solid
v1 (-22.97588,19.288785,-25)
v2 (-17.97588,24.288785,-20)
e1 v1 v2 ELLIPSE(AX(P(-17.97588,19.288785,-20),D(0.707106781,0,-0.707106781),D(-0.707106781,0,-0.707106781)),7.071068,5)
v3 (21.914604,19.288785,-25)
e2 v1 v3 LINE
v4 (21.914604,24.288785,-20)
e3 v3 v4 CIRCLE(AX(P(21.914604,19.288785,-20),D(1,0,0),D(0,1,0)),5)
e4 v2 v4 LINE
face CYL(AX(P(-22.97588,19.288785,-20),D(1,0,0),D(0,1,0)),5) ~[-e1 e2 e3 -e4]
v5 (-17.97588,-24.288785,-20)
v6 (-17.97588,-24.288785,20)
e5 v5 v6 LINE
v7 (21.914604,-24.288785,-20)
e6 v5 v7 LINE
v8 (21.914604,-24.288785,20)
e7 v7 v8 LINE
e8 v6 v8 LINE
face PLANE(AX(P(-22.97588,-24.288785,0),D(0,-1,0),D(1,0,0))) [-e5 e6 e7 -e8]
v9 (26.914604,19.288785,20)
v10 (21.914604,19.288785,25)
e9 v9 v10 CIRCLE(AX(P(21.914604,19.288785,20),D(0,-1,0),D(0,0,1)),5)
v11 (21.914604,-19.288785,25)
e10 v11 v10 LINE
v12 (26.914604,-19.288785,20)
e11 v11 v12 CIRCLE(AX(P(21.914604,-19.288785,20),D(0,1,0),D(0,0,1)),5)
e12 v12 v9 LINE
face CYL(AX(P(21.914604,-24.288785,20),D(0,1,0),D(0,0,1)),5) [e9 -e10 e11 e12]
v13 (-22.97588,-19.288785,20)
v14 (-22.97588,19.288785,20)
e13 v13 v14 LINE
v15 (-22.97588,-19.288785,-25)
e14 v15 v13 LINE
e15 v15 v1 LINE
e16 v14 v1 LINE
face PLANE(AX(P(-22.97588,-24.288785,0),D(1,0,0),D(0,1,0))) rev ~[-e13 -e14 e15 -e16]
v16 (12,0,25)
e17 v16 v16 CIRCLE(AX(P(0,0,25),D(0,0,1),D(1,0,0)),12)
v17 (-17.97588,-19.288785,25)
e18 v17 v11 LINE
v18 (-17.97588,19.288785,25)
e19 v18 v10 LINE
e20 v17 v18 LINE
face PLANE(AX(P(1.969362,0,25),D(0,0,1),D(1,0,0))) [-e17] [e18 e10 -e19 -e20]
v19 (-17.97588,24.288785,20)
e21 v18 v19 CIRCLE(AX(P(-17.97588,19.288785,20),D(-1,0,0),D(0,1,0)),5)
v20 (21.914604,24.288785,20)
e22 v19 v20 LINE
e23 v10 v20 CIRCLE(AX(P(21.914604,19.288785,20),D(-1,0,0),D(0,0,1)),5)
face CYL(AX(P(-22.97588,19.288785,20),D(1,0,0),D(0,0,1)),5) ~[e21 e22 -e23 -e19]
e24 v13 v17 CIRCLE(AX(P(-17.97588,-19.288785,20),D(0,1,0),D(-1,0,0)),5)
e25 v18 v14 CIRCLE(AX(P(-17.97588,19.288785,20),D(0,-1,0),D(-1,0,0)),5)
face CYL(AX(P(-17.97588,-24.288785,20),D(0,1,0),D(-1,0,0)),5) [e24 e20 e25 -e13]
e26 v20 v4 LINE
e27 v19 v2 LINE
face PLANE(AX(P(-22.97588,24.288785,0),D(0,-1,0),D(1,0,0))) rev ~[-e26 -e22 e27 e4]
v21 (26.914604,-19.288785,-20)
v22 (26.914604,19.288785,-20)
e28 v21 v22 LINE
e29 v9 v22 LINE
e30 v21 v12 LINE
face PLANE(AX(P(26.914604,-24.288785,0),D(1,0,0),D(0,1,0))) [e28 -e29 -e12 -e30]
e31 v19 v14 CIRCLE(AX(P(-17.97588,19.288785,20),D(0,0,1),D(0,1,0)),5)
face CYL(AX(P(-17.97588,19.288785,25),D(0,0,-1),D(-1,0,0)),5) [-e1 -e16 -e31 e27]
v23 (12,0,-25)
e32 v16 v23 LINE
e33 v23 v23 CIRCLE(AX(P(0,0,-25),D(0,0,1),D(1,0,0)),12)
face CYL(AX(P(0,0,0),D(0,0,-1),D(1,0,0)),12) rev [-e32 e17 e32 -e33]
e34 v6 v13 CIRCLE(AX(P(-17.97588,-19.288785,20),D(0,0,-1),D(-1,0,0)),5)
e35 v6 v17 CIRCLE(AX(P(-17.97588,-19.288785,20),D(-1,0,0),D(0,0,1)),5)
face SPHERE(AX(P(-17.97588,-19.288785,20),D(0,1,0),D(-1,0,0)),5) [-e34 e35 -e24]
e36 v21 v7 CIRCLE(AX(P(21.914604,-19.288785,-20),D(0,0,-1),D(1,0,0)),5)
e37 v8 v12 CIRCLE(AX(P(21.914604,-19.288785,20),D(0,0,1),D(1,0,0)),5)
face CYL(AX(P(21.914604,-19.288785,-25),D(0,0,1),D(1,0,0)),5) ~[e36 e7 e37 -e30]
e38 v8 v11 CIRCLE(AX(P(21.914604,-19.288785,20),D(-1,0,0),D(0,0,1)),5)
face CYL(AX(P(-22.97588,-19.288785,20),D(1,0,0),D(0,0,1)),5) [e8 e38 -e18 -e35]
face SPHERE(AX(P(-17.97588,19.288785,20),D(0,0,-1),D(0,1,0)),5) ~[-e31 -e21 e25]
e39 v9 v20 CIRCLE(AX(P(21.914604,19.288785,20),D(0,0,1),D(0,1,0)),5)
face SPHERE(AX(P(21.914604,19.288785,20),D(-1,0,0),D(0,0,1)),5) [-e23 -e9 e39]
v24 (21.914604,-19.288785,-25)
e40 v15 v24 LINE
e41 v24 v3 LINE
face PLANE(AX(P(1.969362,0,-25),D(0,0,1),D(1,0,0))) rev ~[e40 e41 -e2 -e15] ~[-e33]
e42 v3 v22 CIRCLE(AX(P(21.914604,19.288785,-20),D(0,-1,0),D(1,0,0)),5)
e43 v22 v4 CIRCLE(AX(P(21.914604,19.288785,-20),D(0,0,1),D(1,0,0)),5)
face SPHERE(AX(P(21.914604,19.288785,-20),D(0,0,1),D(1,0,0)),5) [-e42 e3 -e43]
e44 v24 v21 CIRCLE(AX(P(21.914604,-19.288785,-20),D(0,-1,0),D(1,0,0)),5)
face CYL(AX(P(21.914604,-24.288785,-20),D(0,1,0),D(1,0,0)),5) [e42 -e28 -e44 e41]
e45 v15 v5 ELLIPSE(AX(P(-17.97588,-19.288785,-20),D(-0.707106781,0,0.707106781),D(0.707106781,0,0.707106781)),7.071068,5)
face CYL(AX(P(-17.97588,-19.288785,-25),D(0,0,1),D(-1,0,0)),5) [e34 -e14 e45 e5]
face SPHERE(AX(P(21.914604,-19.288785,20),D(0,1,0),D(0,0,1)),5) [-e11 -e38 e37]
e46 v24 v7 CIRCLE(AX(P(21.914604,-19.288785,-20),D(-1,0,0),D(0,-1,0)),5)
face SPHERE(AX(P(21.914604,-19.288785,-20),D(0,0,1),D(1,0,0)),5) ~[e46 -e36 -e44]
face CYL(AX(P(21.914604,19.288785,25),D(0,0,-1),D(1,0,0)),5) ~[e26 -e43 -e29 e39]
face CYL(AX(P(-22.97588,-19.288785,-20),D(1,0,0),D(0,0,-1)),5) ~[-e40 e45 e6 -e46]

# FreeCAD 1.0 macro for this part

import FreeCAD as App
import Part
import Sketcher

V = App.Vector
Q = App.Units.Quantity


def edges_at(feature, points):
    """Names of the edges that pass closest to the given points."""
    edges = feature.Shape.Edges
    near = lambda p: min(range(len(edges)), key=lambda i: edges[i].distToShape(Part.Vertex(*p))[0])
    return sorted({f"Edge{near(p) + 1}" for p in points})


def add_polygon(sketch, points):
    """Adds a closed chain of lines whose ends are joined by coincident constraints."""
    first, n = sketch.GeometryCount, len(points)
    for a, b in zip(points, points[1:] + points[:1]):
        sketch.addGeometry(Part.LineSegment(App.Vector(*a, 0), App.Vector(*b, 0)), False)
    for i in range(n):
        sketch.addConstraint(Sketcher.Constraint("Coincident", first + i, 2, first + (i + 1) % n, 1))

doc = App.newDocument("Part")
body = doc.addObject("PartDesign::Body", "Body")

sketch1 = body.newObject("Sketcher::SketchObject", "Sketch")
sketch1.AttachmentSupport = (doc.getObject("XY_Plane"), [""])
sketch1.MapMode = "FlatFace"
add_polygon(sketch1, [(-23, 24), (-23, -24), (27, -24), (27, 24)])
sketch1.addGeometry(Part.Circle(V(0, 0, 0), V(0, 0, 1), 12), False)
sketch1.addConstraint(Sketcher.Constraint("Vertical", 0))
sketch1.addConstraint(Sketcher.Constraint("Horizontal", 1))
sketch1.addConstraint(Sketcher.Constraint("Vertical", 2))
sketch1.addConstraint(Sketcher.Constraint("Horizontal", 3))
sketch1.addConstraint(Sketcher.Constraint("Coincident", 4, 3, -1, 1))
sketch1.addConstraint(Sketcher.Constraint("Diameter", 4, Q("24 mm")))
sketch1.addConstraint(Sketcher.Constraint("DistanceY", 0, 2, 0, 1, Q("48.57757 mm")))
sketch1.addConstraint(Sketcher.Constraint("DistanceX", 1, 1, 1, 2, Q("49.890485 mm")))
sketch1.addConstraint(Sketcher.Constraint("DistanceX", 0, 2, -1, 1, Q("22.97588 mm")))
sketch1.addConstraint(Sketcher.Constraint("DistanceY", 0, 2, -1, 1, Q("24.288785 mm")))
pad1 = body.newObject("PartDesign::Pad", "Pad")
pad1.Profile = sketch1
pad1.Length = 50
pad1.Midplane = True
doc.recompute()

fillet = body.newObject("PartDesign::Fillet", "Fillet")
fillet.Base = (pad1, edges_at(pad1, [
    (-22.976, 24.289, 0),
    (1.969, 24.289, 25),
    (-22.976, 0, 25),
    (-22.976, -24.289, 0),
    (26.915, 0, 25),
    (1.969, -24.289, 25),
    (26.915, 24.289, 0),
    (26.915, -24.289, 0),
    (26.915, 0, -25),
    (1.969, 24.289, -25),
    (1.969, -24.289, -25),
]))
fillet.Radius = 5

doc.recompute()
